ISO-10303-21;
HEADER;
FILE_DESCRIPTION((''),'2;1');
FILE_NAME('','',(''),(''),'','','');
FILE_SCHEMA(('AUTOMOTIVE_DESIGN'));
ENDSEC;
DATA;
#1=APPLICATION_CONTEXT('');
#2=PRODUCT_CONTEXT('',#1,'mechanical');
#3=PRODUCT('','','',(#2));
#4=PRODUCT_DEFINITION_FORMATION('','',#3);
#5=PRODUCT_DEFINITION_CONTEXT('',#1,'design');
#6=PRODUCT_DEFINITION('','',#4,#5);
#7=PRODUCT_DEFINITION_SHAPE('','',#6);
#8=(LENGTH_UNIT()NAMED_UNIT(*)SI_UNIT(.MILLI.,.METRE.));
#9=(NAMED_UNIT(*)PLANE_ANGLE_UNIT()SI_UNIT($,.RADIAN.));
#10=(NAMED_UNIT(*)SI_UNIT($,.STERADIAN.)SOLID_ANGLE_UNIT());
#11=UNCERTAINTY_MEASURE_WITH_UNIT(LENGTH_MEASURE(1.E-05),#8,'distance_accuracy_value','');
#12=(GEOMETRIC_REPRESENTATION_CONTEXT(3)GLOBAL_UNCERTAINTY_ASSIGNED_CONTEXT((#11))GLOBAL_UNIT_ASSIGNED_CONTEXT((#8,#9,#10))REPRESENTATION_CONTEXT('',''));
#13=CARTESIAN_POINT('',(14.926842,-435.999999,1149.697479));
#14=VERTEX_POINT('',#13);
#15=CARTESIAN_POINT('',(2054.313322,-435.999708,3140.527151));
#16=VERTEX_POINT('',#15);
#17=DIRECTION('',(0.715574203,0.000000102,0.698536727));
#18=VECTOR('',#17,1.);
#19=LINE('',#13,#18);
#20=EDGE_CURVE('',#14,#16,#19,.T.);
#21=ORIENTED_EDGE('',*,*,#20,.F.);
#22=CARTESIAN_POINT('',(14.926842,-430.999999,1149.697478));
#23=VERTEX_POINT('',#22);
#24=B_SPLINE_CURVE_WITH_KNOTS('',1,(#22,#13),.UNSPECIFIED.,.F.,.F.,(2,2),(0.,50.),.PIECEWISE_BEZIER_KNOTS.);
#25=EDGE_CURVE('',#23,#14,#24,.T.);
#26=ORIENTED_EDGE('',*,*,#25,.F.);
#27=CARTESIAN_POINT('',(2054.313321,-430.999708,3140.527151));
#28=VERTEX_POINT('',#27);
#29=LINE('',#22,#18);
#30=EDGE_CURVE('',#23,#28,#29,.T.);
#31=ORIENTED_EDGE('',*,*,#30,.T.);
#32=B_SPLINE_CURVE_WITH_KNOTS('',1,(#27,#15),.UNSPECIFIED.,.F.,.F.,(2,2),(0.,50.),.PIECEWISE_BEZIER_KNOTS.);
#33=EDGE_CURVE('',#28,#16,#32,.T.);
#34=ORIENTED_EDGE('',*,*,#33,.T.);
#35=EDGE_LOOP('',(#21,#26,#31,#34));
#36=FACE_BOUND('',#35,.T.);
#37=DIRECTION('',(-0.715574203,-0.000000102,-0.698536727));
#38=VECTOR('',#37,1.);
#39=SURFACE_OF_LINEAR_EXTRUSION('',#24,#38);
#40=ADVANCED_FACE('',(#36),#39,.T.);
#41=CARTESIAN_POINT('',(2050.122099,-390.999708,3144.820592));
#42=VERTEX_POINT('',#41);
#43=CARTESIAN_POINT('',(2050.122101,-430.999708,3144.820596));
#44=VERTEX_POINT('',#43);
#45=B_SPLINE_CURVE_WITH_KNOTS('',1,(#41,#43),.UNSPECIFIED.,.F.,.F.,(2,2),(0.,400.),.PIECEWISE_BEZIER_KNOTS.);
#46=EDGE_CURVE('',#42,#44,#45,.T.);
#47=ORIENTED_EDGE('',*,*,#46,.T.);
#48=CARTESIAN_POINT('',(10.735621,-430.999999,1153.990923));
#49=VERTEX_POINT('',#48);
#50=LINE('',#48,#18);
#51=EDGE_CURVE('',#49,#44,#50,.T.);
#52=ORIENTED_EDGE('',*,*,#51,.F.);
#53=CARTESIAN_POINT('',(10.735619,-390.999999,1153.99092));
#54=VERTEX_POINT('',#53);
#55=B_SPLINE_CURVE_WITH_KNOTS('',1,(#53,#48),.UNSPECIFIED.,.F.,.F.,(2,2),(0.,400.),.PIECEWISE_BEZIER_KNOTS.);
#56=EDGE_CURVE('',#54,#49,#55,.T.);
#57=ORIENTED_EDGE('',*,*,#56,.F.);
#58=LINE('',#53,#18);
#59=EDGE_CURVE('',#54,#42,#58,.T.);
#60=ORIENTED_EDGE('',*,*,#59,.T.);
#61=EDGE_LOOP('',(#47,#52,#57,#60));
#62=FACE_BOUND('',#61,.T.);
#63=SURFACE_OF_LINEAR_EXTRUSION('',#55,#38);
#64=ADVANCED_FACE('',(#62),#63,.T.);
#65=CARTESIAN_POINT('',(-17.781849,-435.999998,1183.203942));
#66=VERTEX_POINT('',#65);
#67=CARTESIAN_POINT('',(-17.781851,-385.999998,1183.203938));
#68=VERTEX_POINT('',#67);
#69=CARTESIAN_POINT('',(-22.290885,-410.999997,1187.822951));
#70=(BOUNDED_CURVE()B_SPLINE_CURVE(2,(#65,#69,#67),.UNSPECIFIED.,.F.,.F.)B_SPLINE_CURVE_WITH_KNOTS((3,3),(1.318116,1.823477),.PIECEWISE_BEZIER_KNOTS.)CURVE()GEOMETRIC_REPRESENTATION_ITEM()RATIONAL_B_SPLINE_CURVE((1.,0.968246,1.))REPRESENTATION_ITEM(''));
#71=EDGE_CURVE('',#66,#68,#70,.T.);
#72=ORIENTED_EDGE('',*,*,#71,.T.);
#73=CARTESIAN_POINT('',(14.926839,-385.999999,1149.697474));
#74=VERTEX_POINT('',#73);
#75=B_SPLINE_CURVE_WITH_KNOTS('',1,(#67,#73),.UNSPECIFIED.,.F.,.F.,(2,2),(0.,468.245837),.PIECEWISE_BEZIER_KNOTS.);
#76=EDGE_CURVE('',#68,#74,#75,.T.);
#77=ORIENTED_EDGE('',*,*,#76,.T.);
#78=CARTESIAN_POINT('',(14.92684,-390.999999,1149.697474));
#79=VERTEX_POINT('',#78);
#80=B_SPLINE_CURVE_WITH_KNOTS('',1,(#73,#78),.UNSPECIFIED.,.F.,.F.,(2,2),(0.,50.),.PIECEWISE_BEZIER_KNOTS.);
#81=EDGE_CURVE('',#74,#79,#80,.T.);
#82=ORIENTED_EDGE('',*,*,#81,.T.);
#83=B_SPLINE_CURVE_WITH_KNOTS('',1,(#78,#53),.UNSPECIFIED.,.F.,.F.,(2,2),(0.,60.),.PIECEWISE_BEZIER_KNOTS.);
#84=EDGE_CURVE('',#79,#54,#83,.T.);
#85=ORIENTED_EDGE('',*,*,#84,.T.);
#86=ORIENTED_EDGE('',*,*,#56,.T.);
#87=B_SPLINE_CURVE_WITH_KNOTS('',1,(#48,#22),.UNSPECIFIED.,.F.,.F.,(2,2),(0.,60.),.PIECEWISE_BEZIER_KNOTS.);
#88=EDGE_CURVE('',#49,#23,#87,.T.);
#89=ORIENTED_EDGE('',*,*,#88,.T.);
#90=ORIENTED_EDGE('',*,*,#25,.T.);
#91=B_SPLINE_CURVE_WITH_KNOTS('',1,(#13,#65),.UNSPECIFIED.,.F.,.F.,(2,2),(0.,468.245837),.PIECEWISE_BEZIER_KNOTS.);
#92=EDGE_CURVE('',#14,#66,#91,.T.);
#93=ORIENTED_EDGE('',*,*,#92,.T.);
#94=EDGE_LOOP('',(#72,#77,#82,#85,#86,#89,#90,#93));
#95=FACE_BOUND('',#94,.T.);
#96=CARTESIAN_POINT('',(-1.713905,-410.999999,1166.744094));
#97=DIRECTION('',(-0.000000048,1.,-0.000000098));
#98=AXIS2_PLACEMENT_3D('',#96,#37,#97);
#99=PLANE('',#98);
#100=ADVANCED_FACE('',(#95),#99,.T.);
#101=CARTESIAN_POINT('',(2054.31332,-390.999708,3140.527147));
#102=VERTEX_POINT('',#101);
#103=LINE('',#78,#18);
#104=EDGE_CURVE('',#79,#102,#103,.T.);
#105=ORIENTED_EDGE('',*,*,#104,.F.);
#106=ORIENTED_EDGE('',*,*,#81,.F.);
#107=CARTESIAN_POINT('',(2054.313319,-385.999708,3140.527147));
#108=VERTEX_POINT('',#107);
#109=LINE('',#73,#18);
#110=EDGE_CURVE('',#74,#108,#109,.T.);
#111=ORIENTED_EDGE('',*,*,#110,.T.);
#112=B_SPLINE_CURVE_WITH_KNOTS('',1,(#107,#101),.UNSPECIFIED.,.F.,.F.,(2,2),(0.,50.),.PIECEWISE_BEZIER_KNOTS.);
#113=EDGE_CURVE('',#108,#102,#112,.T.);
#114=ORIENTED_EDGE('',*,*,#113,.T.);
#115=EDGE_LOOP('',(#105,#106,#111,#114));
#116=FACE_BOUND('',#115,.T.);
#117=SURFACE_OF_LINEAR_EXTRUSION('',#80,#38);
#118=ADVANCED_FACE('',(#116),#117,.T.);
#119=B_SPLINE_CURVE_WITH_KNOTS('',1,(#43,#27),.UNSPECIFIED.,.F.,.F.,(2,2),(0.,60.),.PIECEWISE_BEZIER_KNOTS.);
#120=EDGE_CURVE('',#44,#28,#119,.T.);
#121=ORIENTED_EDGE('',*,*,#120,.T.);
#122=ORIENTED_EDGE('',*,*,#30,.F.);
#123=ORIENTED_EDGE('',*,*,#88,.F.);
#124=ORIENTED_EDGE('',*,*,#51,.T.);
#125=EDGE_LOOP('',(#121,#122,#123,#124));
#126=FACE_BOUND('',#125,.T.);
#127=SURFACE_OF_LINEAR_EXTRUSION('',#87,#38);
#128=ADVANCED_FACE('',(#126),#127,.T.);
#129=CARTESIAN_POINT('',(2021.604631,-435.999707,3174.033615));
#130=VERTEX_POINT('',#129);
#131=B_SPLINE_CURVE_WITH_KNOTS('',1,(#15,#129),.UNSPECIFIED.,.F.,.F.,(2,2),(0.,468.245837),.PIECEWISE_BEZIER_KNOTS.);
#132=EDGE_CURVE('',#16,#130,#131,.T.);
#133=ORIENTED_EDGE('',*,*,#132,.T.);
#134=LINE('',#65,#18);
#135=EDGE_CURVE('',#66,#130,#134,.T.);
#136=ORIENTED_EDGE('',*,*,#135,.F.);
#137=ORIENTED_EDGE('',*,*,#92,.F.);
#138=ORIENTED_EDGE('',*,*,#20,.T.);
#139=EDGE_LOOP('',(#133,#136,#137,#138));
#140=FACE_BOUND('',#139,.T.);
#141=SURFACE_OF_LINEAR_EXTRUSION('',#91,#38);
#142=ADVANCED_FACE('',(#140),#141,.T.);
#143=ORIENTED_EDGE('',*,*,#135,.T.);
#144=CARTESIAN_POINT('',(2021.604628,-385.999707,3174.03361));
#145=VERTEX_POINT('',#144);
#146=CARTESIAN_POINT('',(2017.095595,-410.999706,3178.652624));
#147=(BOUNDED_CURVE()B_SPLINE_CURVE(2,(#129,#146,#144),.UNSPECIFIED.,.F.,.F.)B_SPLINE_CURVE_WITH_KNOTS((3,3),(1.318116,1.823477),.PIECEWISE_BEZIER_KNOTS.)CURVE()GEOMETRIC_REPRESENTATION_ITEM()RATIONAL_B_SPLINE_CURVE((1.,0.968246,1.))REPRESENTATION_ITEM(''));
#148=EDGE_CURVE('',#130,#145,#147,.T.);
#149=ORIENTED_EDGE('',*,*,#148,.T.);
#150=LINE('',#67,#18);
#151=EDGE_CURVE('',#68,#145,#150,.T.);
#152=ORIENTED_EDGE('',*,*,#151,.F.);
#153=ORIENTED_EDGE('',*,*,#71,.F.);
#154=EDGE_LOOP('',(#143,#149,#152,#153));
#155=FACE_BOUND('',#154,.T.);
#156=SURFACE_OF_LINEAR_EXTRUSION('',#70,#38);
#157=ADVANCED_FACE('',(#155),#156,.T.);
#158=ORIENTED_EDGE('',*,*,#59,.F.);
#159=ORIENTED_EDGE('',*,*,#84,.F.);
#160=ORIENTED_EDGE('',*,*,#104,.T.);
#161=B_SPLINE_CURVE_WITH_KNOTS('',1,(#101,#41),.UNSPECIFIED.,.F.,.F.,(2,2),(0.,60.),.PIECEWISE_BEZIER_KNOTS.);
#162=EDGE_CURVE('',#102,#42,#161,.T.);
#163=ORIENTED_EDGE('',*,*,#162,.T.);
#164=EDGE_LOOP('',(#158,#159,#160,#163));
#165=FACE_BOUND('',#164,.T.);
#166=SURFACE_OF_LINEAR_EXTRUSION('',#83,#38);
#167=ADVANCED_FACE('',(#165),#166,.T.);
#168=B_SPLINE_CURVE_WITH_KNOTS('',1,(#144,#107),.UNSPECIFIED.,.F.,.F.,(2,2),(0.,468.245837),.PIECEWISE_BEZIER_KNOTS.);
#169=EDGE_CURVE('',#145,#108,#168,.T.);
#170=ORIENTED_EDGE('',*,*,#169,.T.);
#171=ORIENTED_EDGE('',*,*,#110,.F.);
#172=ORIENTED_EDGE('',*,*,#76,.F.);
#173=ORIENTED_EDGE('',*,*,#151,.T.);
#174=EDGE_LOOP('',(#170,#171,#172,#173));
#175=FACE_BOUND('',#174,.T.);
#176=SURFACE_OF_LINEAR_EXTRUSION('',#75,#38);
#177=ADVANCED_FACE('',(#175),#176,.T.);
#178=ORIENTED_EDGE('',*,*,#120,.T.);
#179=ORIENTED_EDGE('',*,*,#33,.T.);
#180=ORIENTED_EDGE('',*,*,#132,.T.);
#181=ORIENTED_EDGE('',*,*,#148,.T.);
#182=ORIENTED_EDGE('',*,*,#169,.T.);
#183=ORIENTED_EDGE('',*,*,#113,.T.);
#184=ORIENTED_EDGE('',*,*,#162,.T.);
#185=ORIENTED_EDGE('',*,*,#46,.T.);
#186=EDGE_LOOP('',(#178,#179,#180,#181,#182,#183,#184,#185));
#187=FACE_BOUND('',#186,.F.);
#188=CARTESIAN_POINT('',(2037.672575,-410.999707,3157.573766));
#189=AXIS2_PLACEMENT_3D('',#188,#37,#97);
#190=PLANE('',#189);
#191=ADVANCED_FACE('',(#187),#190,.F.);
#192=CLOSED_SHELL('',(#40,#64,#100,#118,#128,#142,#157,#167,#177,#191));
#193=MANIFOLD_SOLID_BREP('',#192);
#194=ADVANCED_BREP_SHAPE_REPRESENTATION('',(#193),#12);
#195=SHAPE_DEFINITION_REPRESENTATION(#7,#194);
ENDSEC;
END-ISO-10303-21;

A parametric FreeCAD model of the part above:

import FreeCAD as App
import Part
import Sketcher
from FreeCAD import Vector

doc = App.newDocument("Part")
body = doc.addObject("PartDesign::Body", "Body")

# Sketch on XY plane
sketch1 = body.newObject("Sketcher::SketchObject", "Sketch")
sketch1.AttachmentSupport = (doc.getObject("XY_Plane"), [""])
sketch1.MapMode = "FlatFace"
sketch1.addGeometry([
    Part.BSplineCurve([Vector(-429.935548, -880.45842, 0), Vector(-476.760131, -880.45842, 0)], [2, 2], [0, 468.245837], False, 1, [1, 1], False),  # 0
    Part.BSplineCurve([Vector(-476.760131, -880.45842, 0), Vector(-476.760131, -885.45842, 0)], [2, 2], [0, 50], False, 1, [1, 1], False),  # 1
    Part.BSplineCurve([Vector(-476.760131, -885.45842, 0), Vector(-470.760131, -885.45842, 0)], [2, 2], [0, 60], False, 1, [1, 1], False),  # 2
    Part.BSplineCurve([Vector(-470.760131, -885.45842, 0), Vector(-470.760131, -925.45842, 0)], [2, 2], [0, 400], False, 1, [1, 1], False),  # 3
    Part.BSplineCurve([Vector(-470.760131, -925.45842, 0), Vector(-476.760131, -925.45842, 0)], [2, 2], [0, 60], False, 1, [1, 1], False),  # 4
    Part.BSplineCurve([Vector(-476.760131, -925.45842, 0), Vector(-476.760131, -930.45842, 0)], [2, 2], [0, 50], False, 1, [1, 1], False),  # 5
    Part.BSplineCurve([Vector(-476.760131, -930.45842, 0), Vector(-429.935548, -930.45842, 0)], [2, 2], [0, 468.245837], False, 1, [1, 1], False),  # 6
    Part.BSplineCurve([Vector(-429.935548, -930.45842, 0), Vector(-423.480576, -905.45842, 0), Vector(-429.935548, -880.45842, 0)], [3, 3], [1.318116, 1.823477], False, 2, [1, 0.968246, 1], False),  # 7
], False)
sketch1.addConstraint([
    Sketcher.Constraint("Block", 0),
    Sketcher.Constraint("Block", 1),
    Sketcher.Constraint("Block", 2),
    Sketcher.Constraint("Block", 3),
    Sketcher.Constraint("Block", 4),
    Sketcher.Constraint("Block", 5),
    Sketcher.Constraint("Block", 6),
    Sketcher.Constraint("Block", 7),
])
pad1 = body.newObject("PartDesign::Pad", "Pad")
pad1.Profile = sketch1
pad1.Length = 2850
pad1.Reversed = True
body2 = doc.addObject("PartDesign::Body", "Body001")
doc.recompute()

body.Placement = App.Placement(Vector(0, 0, 0), App.Rotation(Vector(1, 0, 0), 180.000008))
boolean = body2.newObject("PartDesign::Boolean", "Boolean")
boolean.Type = "Fuse"
boolean.addObjects([body])
body3 = doc.addObject("PartDesign::Body", "Body002")
doc.recompute()

body2.Placement = App.Placement(Vector(0, 0, 0), App.Rotation(Vector(0, 1, 0), 314.309723))
boolean2 = body3.newObject("PartDesign::Boolean", "Boolean001")
boolean2.Type = "Fuse"
boolean2.addObjects([body2])
body4 = doc.addObject("PartDesign::Body", "Body003")
doc.recompute()

body3.Placement = App.Placement(Vector(-318.107664, 494.458438, 1490.854639), App.Rotation(Vector(0, 0, 1), 179.999997))
boolean3 = body4.newObject("PartDesign::Boolean", "Boolean002")
boolean3.Type = "Fuse"
boolean3.addObjects([body3])

doc.recompute()
